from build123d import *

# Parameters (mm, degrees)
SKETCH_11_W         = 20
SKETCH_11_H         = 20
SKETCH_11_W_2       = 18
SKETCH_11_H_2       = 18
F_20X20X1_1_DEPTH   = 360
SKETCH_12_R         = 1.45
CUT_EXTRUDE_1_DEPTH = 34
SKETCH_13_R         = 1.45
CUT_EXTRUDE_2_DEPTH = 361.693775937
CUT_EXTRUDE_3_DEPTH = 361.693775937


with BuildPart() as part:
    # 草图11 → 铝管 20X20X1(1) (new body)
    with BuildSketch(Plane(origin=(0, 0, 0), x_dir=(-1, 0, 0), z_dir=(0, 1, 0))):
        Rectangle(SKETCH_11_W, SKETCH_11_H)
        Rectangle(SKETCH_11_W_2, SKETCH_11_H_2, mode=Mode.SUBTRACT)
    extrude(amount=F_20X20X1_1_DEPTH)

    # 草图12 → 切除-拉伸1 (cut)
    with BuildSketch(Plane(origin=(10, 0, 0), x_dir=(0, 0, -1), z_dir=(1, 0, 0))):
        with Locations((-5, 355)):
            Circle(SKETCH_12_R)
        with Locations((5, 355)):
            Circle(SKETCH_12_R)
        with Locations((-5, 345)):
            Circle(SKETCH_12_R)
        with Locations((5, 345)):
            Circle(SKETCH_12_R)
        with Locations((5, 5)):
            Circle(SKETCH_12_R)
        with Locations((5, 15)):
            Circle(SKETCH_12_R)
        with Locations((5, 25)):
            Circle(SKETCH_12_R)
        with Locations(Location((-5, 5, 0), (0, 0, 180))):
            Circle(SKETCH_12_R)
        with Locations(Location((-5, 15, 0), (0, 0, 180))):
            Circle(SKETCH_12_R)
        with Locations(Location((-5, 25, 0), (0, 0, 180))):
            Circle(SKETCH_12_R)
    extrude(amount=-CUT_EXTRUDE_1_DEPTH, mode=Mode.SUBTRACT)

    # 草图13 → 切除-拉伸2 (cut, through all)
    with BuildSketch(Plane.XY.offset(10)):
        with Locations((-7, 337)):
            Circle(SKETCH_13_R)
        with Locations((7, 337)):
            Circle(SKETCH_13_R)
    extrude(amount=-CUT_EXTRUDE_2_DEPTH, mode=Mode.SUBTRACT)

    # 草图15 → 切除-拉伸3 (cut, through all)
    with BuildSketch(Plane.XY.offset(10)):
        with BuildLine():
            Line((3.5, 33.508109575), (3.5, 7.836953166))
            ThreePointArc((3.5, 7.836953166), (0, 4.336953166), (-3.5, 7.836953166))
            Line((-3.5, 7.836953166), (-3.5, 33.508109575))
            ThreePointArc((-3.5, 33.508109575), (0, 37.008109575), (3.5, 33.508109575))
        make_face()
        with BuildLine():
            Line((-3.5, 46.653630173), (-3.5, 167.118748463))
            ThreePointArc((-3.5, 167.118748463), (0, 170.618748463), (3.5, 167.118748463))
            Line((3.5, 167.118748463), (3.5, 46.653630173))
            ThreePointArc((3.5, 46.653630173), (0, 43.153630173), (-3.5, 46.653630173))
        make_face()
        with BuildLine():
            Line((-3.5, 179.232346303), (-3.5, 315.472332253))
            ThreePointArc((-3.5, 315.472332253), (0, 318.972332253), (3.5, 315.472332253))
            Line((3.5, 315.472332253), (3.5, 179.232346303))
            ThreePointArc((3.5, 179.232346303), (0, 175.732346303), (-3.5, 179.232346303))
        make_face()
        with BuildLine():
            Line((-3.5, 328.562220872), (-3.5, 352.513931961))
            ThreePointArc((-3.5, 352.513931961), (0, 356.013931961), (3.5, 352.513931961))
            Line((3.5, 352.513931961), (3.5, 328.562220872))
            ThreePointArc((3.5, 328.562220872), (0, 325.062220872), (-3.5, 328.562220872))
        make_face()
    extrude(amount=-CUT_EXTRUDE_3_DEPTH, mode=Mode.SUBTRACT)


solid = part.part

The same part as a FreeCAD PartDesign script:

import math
import FreeCAD as App
import Part
import Sketcher

V = App.Vector

doc = App.newDocument("Part")
body = doc.addObject("PartDesign::Body", "Body")

# Sketch on XZ plane
sketch1 = body.newObject("Sketcher::SketchObject", "Sketch")
sketch1.AttachmentSupport = (doc.getObject("XZ_Plane"), [""])
sketch1.MapMode = "FlatFace"
sketch1.addGeometry(Part.LineSegment(V(10, 10, 0), V(10, -10, 0)), False)
sketch1.addGeometry(Part.LineSegment(V(10, -10, 0), V(-10, -10, 0)), False)
sketch1.addGeometry(Part.LineSegment(V(-10, -10, 0), V(-10, 10, 0)), False)
sketch1.addGeometry(Part.LineSegment(V(-10, 10, 0), V(10, 10, 0)), False)
sketch1.addGeometry(Part.LineSegment(V(-9, -9, 0), V(9, -9, 0)), False)
sketch1.addGeometry(Part.LineSegment(V(9, -9, 0), V(9, 9, 0)), False)
sketch1.addGeometry(Part.LineSegment(V(9, 9, 0), V(-9, 9, 0)), False)
sketch1.addGeometry(Part.LineSegment(V(-9, 9, 0), V(-9, -9, 0)), False)
sketch1.addConstraint(Sketcher.Constraint("Coincident", 0, 2, 1, 1))
sketch1.addConstraint(Sketcher.Constraint("Coincident", 1, 2, 2, 1))
sketch1.addConstraint(Sketcher.Constraint("Coincident", 2, 2, 3, 1))
sketch1.addConstraint(Sketcher.Constraint("Coincident", 3, 2, 0, 1))
sketch1.addConstraint(Sketcher.Constraint("Coincident", 4, 2, 5, 1))
sketch1.addConstraint(Sketcher.Constraint("Coincident", 5, 2, 6, 1))
sketch1.addConstraint(Sketcher.Constraint("Coincident", 6, 2, 7, 1))
sketch1.addConstraint(Sketcher.Constraint("Coincident", 7, 2, 4, 1))
sketch1.addConstraint(Sketcher.Constraint("Vertical", 0))
sketch1.addConstraint(Sketcher.Constraint("Horizontal", 1))
sketch1.addConstraint(Sketcher.Constraint("Vertical", 2))
sketch1.addConstraint(Sketcher.Constraint("Horizontal", 3))
sketch1.addConstraint(Sketcher.Constraint("Horizontal", 4))
sketch1.addConstraint(Sketcher.Constraint("Vertical", 5))
sketch1.addConstraint(Sketcher.Constraint("Horizontal", 6))
sketch1.addConstraint(Sketcher.Constraint("Vertical", 7))
sketch1.addConstraint(Sketcher.Constraint("Symmetric", 0, 2, 2, 2, -1, 1))
sketch1.addConstraint(Sketcher.Constraint("Symmetric", 4, 2, 6, 2, -1, 1))
sketch1.addConstraint(Sketcher.Constraint("Equal", 3, 0))
sketch1.addConstraint(Sketcher.Constraint("Equal", 6, 5))
sketch1.addConstraint(Sketcher.Constraint("DistanceX", 1, 2, 1, 1, 20.0))
sketch1.addConstraint(Sketcher.Constraint("DistanceX", 4, 1, 4, 2, 18.0))
pad1 = body.newObject("PartDesign::Pad", "Pad")
pad1.Profile = sketch1
pad1.Length = 360
pad1.Reversed = True

# Sketch on YZ plane
sketch2 = body.newObject("Sketcher::SketchObject", "Sketch001")
sketch2.AttachmentSupport = (doc.getObject("YZ_Plane"), [""])
sketch2.MapMode = "FlatFace"
sketch2.AttachmentOffset = App.Placement(V(0, 0, 10), App.Rotation())
sketch2.addGeometry(Part.Circle(V(355, 5, 0), V(0, 0, 1), 1.4), False)
sketch2.addGeometry(Part.Circle(V(355, -5, 0), V(0, 0, 1), 1.4), False)
sketch2.addGeometry(Part.Circle(V(345, 5, 0), V(0, 0, 1), 1.4), False)
sketch2.addGeometry(Part.Circle(V(345, -5, 0), V(0, 0, 1), 1.4), False)
sketch2.addGeometry(Part.Circle(V(5, -5, 0), V(0, 0, 1), 1.4), False)
sketch2.addGeometry(Part.Circle(V(15, -5, 0), V(0, 0, 1), 1.4), False)
sketch2.addGeometry(Part.Circle(V(25, -5, 0), V(0, 0, 1), 1.4), False)
sketch2.addGeometry(Part.Circle(V(5, 5, 0), V(0, 0, 1), 1.4), False)
sketch2.addGeometry(Part.Circle(V(15, 5, 0), V(0, 0, 1), 1.4), False)
sketch2.addGeometry(Part.Circle(V(25, 5, 0), V(0, 0, 1), 1.4), False)
sketch2.addConstraint(Sketcher.Constraint("Equal", 0, 1))
sketch2.addConstraint(Sketcher.Constraint("Equal", 1, 2))
sketch2.addConstraint(Sketcher.Constraint("Equal", 2, 3))
sketch2.addConstraint(Sketcher.Constraint("Equal", 3, 4))
sketch2.addConstraint(Sketcher.Constraint("Equal", 4, 5))
sketch2.addConstraint(Sketcher.Constraint("Equal", 5, 6))
sketch2.addConstraint(Sketcher.Constraint("Equal", 6, 7))
sketch2.addConstraint(Sketcher.Constraint("Equal", 7, 8))
sketch2.addConstraint(Sketcher.Constraint("Equal", 8, 9))
sketch2.addConstraint(Sketcher.Constraint("Symmetric", 0, 3, 1, 3, -1))
sketch2.addConstraint(Sketcher.Constraint("Symmetric", 2, 3, 3, 3, -1))
sketch2.addConstraint(Sketcher.Constraint("Symmetric", 4, 3, 7, 3, -1))
sketch2.addConstraint(Sketcher.Constraint("Symmetric", 5, 3, 8, 3, -1))
sketch2.addConstraint(Sketcher.Constraint("Symmetric", 6, 3, 9, 3, -1))
sketch2.addConstraint(Sketcher.Constraint("Horizontal", 0, 3, 2, 3))
sketch2.addConstraint(Sketcher.Constraint("Horizontal", 3, 3, 4, 3))
sketch2.addConstraint(Sketcher.Constraint("Horizontal", 4, 3, 5, 3))
sketch2.addConstraint(Sketcher.Constraint("Horizontal", 5, 3, 6, 3))
sketch2.addConstraint(Sketcher.Constraint("Diameter", 0, 2.9))
sketch2.addConstraint(Sketcher.Constraint("DistanceX", -1, 1, 0, 3, 355.0))
sketch2.addConstraint(Sketcher.Constraint("DistanceY", -1, 1, 0, 3, 5.0))
sketch2.addConstraint(Sketcher.Constraint("DistanceX", -1, 1, 2, 3, 345.0))
sketch2.addConstraint(Sketcher.Constraint("DistanceX", -1, 1, 4, 3, 5.0))
sketch2.addConstraint(Sketcher.Constraint("DistanceX", -1, 1, 5, 3, 15.0))
sketch2.addConstraint(Sketcher.Constraint("DistanceX", -1, 1, 6, 3, 25.0))
pocket1 = body.newObject("PartDesign::Pocket", "Pocket")
pocket1.Profile = sketch2
pocket1.Length = 34

# Sketch on XY plane
sketch3 = body.newObject("Sketcher::SketchObject", "Sketch002")
sketch3.AttachmentSupport = (doc.getObject("XY_Plane"), [""])
sketch3.MapMode = "FlatFace"
sketch3.AttachmentOffset = App.Placement(V(0, 0, 10), App.Rotation())
sketch3.addGeometry(Part.Circle(V(-7, 337, 0), V(0, 0, 1), 1.4), False)
sketch3.addGeometry(Part.Circle(V(7, 337, 0), V(0, 0, 1), 1.4), False)
sketch3.addConstraint(Sketcher.Constraint("Equal", 0, 1))
sketch3.addConstraint(Sketcher.Constraint("Symmetric", 0, 3, 1, 3, -2))
sketch3.addConstraint(Sketcher.Constraint("Diameter", 0, 2.9))
sketch3.addConstraint(Sketcher.Constraint("DistanceX", 0, 3, -1, 1, 7.0))
sketch3.addConstraint(Sketcher.Constraint("DistanceY", -1, 1, 0, 3, 337.0))
pocket2 = body.newObject("PartDesign::Pocket", "Pocket001")
pocket2.Profile = sketch3
pocket2.Type = "ThroughAll"

# Sketch on XY plane
sketch4 = body.newObject("Sketcher::SketchObject", "Sketch003")
sketch4.AttachmentSupport = (doc.getObject("XY_Plane"), [""])
sketch4.MapMode = "FlatFace"
sketch4.AttachmentOffset = App.Placement(V(0, 0, 10), App.Rotation())
sketch4.addGeometry(Part.LineSegment(V(3.5, 7.8, 0), V(3.5, 33.5, 0)), False)
sketch4.addGeometry(Part.ArcOfCircle(Part.Circle(V(0, 33.5, 0), V(0, 0, 1), 3.5), math.radians(0), math.radians(180)), False)
sketch4.addGeometry(Part.LineSegment(V(-3.5, 33.5, 0), V(-3.5, 7.8, 0)), False)
sketch4.addGeometry(Part.ArcOfCircle(Part.Circle(V(0, 7.8, 0), V(0, 0, 1), 3.5), math.radians(180), math.radians(360)), False)
sketch4.addGeometry(Part.LineSegment(V(-3.5, 167.1, 0), V(-3.5, 46.7, 0)), False)
sketch4.addGeometry(Part.ArcOfCircle(Part.Circle(V(0, 46.7, 0), V(0, 0, 1), 3.5), math.radians(180), math.radians(360)), False)
sketch4.addGeometry(Part.LineSegment(V(3.5, 46.7, 0), V(3.5, 167.1, 0)), False)
sketch4.addGeometry(Part.ArcOfCircle(Part.Circle(V(0, 167.1, 0), V(0, 0, 1), 3.5), math.radians(0), math.radians(180)), False)
sketch4.addGeometry(Part.LineSegment(V(-3.5, 315.5, 0), V(-3.5, 179.2, 0)), False)
sketch4.addGeometry(Part.ArcOfCircle(Part.Circle(V(0, 179.2, 0), V(0, 0, 1), 3.5), math.radians(180), math.radians(360)), False)
sketch4.addGeometry(Part.LineSegment(V(3.5, 179.2, 0), V(3.5, 315.5, 0)), False)
sketch4.addGeometry(Part.ArcOfCircle(Part.Circle(V(0, 315.5, 0), V(0, 0, 1), 3.5), math.radians(0), math.radians(180)), False)
sketch4.addGeometry(Part.LineSegment(V(-3.5, 352.5, 0), V(-3.5, 328.6, 0)), False)
sketch4.addGeometry(Part.ArcOfCircle(Part.Circle(V(0, 328.6, 0), V(0, 0, 1), 3.5), math.radians(180), math.radians(360)), False)
sketch4.addGeometry(Part.LineSegment(V(3.5, 328.6, 0), V(3.5, 352.5, 0)), False)
sketch4.addGeometry(Part.ArcOfCircle(Part.Circle(V(0, 352.5, 0), V(0, 0, 1), 3.5), math.radians(0), math.radians(180)), False)
sketch4.addConstraint(Sketcher.Constraint("Tangent", 0, 2, 1, 1))
sketch4.addConstraint(Sketcher.Constraint("Tangent", 1, 2, 2, 1))
sketch4.addConstraint(Sketcher.Constraint("Tangent", 2, 2, 3, 1))
sketch4.addConstraint(Sketcher.Constraint("Tangent", 3, 2, 0, 1))
sketch4.addConstraint(Sketcher.Constraint("Tangent", 4, 2, 5, 1))
sketch4.addConstraint(Sketcher.Constraint("Tangent", 5, 2, 6, 1))
sketch4.addConstraint(Sketcher.Constraint("Tangent", 6, 2, 7, 1))
sketch4.addConstraint(Sketcher.Constraint("Tangent", 7, 2, 4, 1))
sketch4.addConstraint(Sketcher.Constraint("Tangent", 8, 2, 9, 1))
sketch4.addConstraint(Sketcher.Constraint("Tangent", 9, 2, 10, 1))
sketch4.addConstraint(Sketcher.Constraint("Tangent", 10, 2, 11, 1))
sketch4.addConstraint(Sketcher.Constraint("Tangent", 11, 2, 8, 1))
sketch4.addConstraint(Sketcher.Constraint("Tangent", 12, 2, 13, 1))
sketch4.addConstraint(Sketcher.Constraint("Tangent", 13, 2, 14, 1))
sketch4.addConstraint(Sketcher.Constraint("Tangent", 14, 2, 15, 1))
sketch4.addConstraint(Sketcher.Constraint("Tangent", 15, 2, 12, 1))
sketch4.addConstraint(Sketcher.Constraint("Vertical", 0))
sketch4.addConstraint(Sketcher.Constraint("Vertical", 2))
sketch4.addConstraint(Sketcher.Constraint("Vertical", 4))
sketch4.addConstraint(Sketcher.Constraint("Vertical", 6))
sketch4.addConstraint(Sketcher.Constraint("Vertical", 8))
sketch4.addConstraint(Sketcher.Constraint("Vertical", 10))
sketch4.addConstraint(Sketcher.Constraint("Vertical", 12))
sketch4.addConstraint(Sketcher.Constraint("Vertical", 14))
sketch4.addConstraint(Sketcher.Constraint("Equal", 3, 5))
sketch4.addConstraint(Sketcher.Constraint("Equal", 7, 9))
sketch4.addConstraint(Sketcher.Constraint("Equal", 11, 13))
sketch4.addConstraint(Sketcher.Constraint("PointOnObject", 1, 3, -2))
sketch4.addConstraint(Sketcher.Constraint("PointOnObject", 5, 3, -2))
sketch4.addConstraint(Sketcher.Constraint("PointOnObject", 9, 3, -2))
sketch4.addConstraint(Sketcher.Constraint("PointOnObject", 13, 3, -2))
sketch4.addConstraint(Sketcher.Constraint("Radius", 1, 3.5))
sketch4.addConstraint(Sketcher.Constraint("DistanceY", 4, 2, 4, 1, 120.465118))
sketch4.addConstraint(Sketcher.Constraint("DistanceY", 12, 2, 12, 1, 23.951711))
sketch4.addConstraint(Sketcher.Constraint("DistanceY", 11, 3, 15, 3, 37.0416))
sketch4.addConstraint(Sketcher.Constraint("DistanceY", 5, 3, 15, 3, 305.860302))
sketch4.addConstraint(Sketcher.Constraint("DistanceY", 0, 1, 0, 2, 25.671156))
sketch4.addConstraint(Sketcher.Constraint("DistanceY", 8, 2, 8, 1, 136.239986))
sketch4.addConstraint(Sketcher.Constraint("DistanceY", -1, 1, 1, 3, 33.50811))
sketch4.addConstraint(Sketcher.Constraint("DistanceY", -1, 1, 5, 3, 46.65363))
pocket3 = body.newObject("PartDesign::Pocket", "Pocket002")
pocket3.Profile = sketch4
pocket3.Type = "ThroughAll"

doc.recompute()
